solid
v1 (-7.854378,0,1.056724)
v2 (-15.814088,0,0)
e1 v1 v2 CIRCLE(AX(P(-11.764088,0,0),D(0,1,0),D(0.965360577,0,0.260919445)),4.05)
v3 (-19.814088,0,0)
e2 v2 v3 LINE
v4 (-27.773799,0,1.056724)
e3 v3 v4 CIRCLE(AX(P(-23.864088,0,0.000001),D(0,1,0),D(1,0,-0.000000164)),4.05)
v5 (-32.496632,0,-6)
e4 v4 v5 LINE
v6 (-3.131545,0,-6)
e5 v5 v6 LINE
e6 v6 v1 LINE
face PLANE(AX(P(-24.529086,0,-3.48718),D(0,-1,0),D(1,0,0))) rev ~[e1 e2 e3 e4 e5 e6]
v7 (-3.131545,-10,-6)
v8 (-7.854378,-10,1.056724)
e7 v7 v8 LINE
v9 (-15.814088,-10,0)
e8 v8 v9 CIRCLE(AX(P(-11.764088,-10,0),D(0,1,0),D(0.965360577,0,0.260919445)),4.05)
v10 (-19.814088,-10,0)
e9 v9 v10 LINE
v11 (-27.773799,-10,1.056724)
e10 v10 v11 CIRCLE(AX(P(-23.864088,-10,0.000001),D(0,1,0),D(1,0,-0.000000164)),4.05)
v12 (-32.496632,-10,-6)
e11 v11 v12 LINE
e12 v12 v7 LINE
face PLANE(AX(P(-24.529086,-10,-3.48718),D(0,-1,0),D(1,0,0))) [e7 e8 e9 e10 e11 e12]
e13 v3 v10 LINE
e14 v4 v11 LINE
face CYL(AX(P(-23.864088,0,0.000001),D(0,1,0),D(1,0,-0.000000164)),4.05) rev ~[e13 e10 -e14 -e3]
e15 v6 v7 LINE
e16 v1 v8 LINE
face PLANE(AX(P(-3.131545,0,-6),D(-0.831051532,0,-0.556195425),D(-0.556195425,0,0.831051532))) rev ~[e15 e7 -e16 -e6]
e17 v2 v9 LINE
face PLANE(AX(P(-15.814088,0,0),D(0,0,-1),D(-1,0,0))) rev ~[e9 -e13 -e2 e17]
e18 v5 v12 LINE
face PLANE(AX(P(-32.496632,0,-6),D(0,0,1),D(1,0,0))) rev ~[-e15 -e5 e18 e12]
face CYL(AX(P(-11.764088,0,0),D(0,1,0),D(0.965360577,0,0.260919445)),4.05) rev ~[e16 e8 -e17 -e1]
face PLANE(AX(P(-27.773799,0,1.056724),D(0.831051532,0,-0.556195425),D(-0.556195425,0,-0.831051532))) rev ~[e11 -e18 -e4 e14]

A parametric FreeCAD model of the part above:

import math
import FreeCAD as App
import Part
import Sketcher
from FreeCAD import Vector

doc = App.newDocument("Part")
params = doc.addObject("Spreadsheet::Sheet", "Params")
for row, (alias, value) in enumerate([
    ("sketch1_width", "4 mm"),
    ("sketch1_radius", "4.05 mm"),
    ("pad1_length", "10 mm"),
], start=1):
    params.set(f"A{row}", alias)
    params.set(f"B{row}", "=" + value)
    params.setAlias(f"B{row}", alias)

body = doc.addObject("PartDesign::Body", "Body")

sketch1 = doc.addObject("Sketcher::SketchObject", "Sketch")
body.addObject(sketch1)
sketch1.AttachmentSupport = (doc.XZ_Plane, [""])
sketch1.MapMode = "FlatFace"
sketch1.addGeometry([
    Part.ArcOfCircle(Part.Circle(Vector(-23.9, 0, 0), Vector(0, 0, 1), 4.1), math.radians(165), math.radians(360)),
    Part.LineSegment(Vector(-27.8, 1.1, 0), Vector(-32.5, -6, 0)),
    Part.LineSegment(Vector(-32.5, -6, 0), Vector(-3.1, -6, 0)),
    Part.LineSegment(Vector(-3.1, -6, 0), Vector(-7.9, 1.1, 0)),
    Part.ArcOfCircle(Part.Circle(Vector(-11.8, 0, 0), Vector(0, 0, 1), 4), math.radians(-180), math.radians(15)),
    Part.LineSegment(Vector(-15.8, 0, 0), Vector(-19.8, 0, 0)),
], False)
sketch1.addConstraint([
    Sketcher.Constraint("Coincident", 0, 1, 1, 1),
    Sketcher.Constraint("Coincident", 1, 2, 2, 1),
    Sketcher.Constraint("Coincident", 2, 2, 3, 1),
    Sketcher.Constraint("Coincident", 3, 2, 4, 2),
    Sketcher.Constraint("Coincident", 4, 1, 5, 1),
    Sketcher.Constraint("Coincident", 5, 2, 0, 2),
    Sketcher.Constraint("Horizontal", 2),
    Sketcher.Constraint("Horizontal", 5),
    Sketcher.Constraint("Equal", 0, 4),
    Sketcher.Constraint("PointOnObject", 0, 3, -1),
    Sketcher.Constraint("PointOnObject", 4, 3, -1),
    Sketcher.Constraint("PointOnObject", 4, 1, -1),
    Sketcher.Constraint("Horizontal", 0, 1, 3, 2),
    Sketcher.Constraint("Equal", 1, 3),
    Sketcher.Constraint("DistanceX", 5, 2, 5, 1, 4.0),
    Sketcher.Constraint("Radius", 0, 4.05),
    Sketcher.Constraint("DistanceY", 1, 2, -1, 1, 6.0),
    Sketcher.Constraint("DistanceX", 0, 1, -1, 1, 27.773799),
    Sketcher.Constraint("Distance", 1, 8.491319),
    Sketcher.Constraint("DistanceX", 2, 1, 2, 2, 29.365087),
])
sketch1.setExpression("Constraints[14]", "Params.sketch1_width")
sketch1.setExpression("Constraints[15]", "Params.sketch1_radius")
pad1 = doc.addObject("PartDesign::Pad", "Pad")
body.addObject(pad1)
pad1.Profile = sketch1
pad1.setExpression("Length", "Params.pad1_length")

doc.recompute()
